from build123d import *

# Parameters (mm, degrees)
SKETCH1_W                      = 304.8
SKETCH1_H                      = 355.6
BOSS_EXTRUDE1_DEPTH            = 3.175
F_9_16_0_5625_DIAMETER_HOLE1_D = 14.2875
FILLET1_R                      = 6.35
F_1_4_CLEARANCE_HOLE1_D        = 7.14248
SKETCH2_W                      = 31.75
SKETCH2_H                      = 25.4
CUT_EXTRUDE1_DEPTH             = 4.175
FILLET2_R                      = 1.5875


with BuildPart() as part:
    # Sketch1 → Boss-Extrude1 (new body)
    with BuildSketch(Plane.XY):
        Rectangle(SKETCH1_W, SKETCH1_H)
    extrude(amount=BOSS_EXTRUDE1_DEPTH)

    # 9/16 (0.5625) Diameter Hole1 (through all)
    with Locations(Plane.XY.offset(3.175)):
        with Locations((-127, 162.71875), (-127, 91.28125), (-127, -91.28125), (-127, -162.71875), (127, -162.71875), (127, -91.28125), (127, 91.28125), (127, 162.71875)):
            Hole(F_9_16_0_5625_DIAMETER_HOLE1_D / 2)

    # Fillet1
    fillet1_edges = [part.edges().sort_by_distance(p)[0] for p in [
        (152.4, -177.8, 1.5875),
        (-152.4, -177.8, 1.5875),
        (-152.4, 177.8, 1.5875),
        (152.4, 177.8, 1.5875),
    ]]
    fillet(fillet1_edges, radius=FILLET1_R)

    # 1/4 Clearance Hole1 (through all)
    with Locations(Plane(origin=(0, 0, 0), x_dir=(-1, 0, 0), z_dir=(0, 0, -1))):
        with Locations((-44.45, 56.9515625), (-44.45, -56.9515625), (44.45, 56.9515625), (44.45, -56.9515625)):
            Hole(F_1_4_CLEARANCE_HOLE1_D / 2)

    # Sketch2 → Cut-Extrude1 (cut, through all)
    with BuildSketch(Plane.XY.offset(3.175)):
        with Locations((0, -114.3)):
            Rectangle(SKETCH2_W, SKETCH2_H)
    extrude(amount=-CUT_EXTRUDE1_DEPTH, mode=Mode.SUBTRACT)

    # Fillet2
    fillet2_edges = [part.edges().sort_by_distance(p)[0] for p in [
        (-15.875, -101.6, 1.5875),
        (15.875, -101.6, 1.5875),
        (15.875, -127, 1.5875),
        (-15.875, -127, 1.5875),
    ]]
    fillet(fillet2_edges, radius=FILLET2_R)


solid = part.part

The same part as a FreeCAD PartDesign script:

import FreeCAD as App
import Part
import Sketcher

V = App.Vector
Q = App.Units.Quantity


def edges_at(feature, points):
    """Names of the edges that pass closest to the given points."""
    edges = feature.Shape.Edges
    near = lambda p: min(range(len(edges)), key=lambda i: edges[i].distToShape(Part.Vertex(*p))[0])
    return sorted({f"Edge{near(p) + 1}" for p in points})

doc = App.newDocument("Part")
body = doc.addObject("PartDesign::Body", "Body")

sketch1 = doc.addObject("Sketcher::SketchObject", "Sketch")
body.addObject(sketch1)
sketch1.AttachmentSupport = (doc.XY_Plane, [""])
sketch1.MapMode = "FlatFace"
sketch1.addGeometry([
    Part.LineSegment(V(-152, 178, 0), V(-152, -178, 0)),
    Part.LineSegment(V(-152, -178, 0), V(152, -178, 0)),
    Part.LineSegment(V(152, -178, 0), V(152, 178, 0)),
    Part.LineSegment(V(152, 178, 0), V(-152, 178, 0)),
], False)
sketch1.addConstraint([
    Sketcher.Constraint("Coincident", 0, 2, 1, 1),
    Sketcher.Constraint("Coincident", 1, 2, 2, 1),
    Sketcher.Constraint("Coincident", 2, 2, 3, 1),
    Sketcher.Constraint("Coincident", 3, 2, 0, 1),
    Sketcher.Constraint("Vertical", 0),
    Sketcher.Constraint("Horizontal", 1),
    Sketcher.Constraint("Vertical", 2),
    Sketcher.Constraint("Horizontal", 3),
    Sketcher.Constraint("Symmetric", 0, 2, 2, 2, -1, 1),
    Sketcher.Constraint("DistanceX", 1, 1, 1, 2, Q("12 in")),
    Sketcher.Constraint("DistanceY", 0, 2, 0, 1, Q("14 in")),
])
pad1 = doc.addObject("PartDesign::Pad", "Pad")
body.addObject(pad1)
pad1.Profile = sketch1
pad1.Length = Q("0.125 in")

sketch2 = doc.addObject("Sketcher::SketchObject", "Sketch001")
body.addObject(sketch2)
sketch2.AttachmentSupport = (doc.XY_Plane, [""])
sketch2.MapMode = "FlatFace"
sketch2.AttachmentOffset = App.Placement(V(0, 0, 0.125 * 25.4), App.Rotation())
sketch2.addGeometry([
    Part.Circle(V(-127, 163, 0), V(0, 0, 1), 7),
    Part.Circle(V(-127, 91, 0), V(0, 0, 1), 7),
    Part.Circle(V(-127, -91, 0), V(0, 0, 1), 7),
    Part.Circle(V(-127, -163, 0), V(0, 0, 1), 7),
    Part.Circle(V(127, -163, 0), V(0, 0, 1), 7),
    Part.Circle(V(127, -91, 0), V(0, 0, 1), 7),
    Part.Circle(V(127, 91, 0), V(0, 0, 1), 7),
    Part.Circle(V(127, 163, 0), V(0, 0, 1), 7),
], False)
sketch2.addConstraint([
    Sketcher.Constraint("Equal", 0, 1),
    Sketcher.Constraint("Equal", 1, 2),
    Sketcher.Constraint("Equal", 2, 3),
    Sketcher.Constraint("Equal", 3, 4),
    Sketcher.Constraint("Equal", 4, 5),
    Sketcher.Constraint("Equal", 5, 6),
    Sketcher.Constraint("Equal", 6, 7),
    Sketcher.Constraint("Symmetric", 0, 3, 4, 3, -1, 1),
    Sketcher.Constraint("Symmetric", 1, 3, 5, 3, -1, 1),
    Sketcher.Constraint("Symmetric", 2, 3, 6, 3, -1, 1),
    Sketcher.Constraint("Symmetric", 3, 3, 7, 3, -1, 1),
    Sketcher.Constraint("Symmetric", 3, 3, 4, 3, -2),
    Sketcher.Constraint("Symmetric", 2, 3, 5, 3, -2),
    Sketcher.Constraint("Vertical", 0, 3, 1, 3),
    Sketcher.Constraint("Diameter", 0, Q("0.5625 in")),
    Sketcher.Constraint("DistanceX", 0, 3, -1, 1, Q("5 in")),
    Sketcher.Constraint("DistanceY", 2, 3, 0, 3, Q("10 in")),
    Sketcher.Constraint("DistanceY", -1, 1, 0, 3, Q("6.40625 in")),
])
doc.recompute()
hole = doc.addObject("PartDesign::Hole", "Hole")
body.addObject(hole)
hole.Profile = sketch2
hole.ThreadType = "None"
hole.Diameter = Q("0.5625 in")
hole.DepthType = "ThroughAll"
doc.recompute()

fillet = doc.addObject("PartDesign::Fillet", "Fillet")
body.addObject(fillet)
fillet.Base = (hole, edges_at(hole, [
    (152.4, -177.8, 1.587),
    (-152.4, -177.8, 1.587),
    (-152.4, 177.8, 1.587),
    (152.4, 177.8, 1.587),
]))
fillet.Radius = Q("0.25 in")

sketch3 = doc.addObject("Sketcher::SketchObject", "Sketch002")
body.addObject(sketch3)
sketch3.AttachmentSupport = (doc.XY_Plane, [""])
sketch3.MapMode = "FlatFace"
sketch3.addGeometry([
    Part.Circle(V(44.5, 57, 0), V(0, 0, 1), 3.6),
    Part.Circle(V(44.5, -57, 0), V(0, 0, 1), 3.6),
    Part.Circle(V(-44.5, 57, 0), V(0, 0, 1), 3.6),
    Part.Circle(V(-44.5, -57, 0), V(0, 0, 1), 3.6),
], False)
sketch3.addConstraint([
    Sketcher.Constraint("Equal", 0, 1),
    Sketcher.Constraint("Equal", 1, 2),
    Sketcher.Constraint("Equal", 2, 3),
    Sketcher.Constraint("Symmetric", 1, 3, 2, 3, -1, 1),
    Sketcher.Constraint("Symmetric", 0, 3, 3, 3, -1, 1),
    Sketcher.Constraint("Symmetric", 0, 3, 2, 3, -2),
    Sketcher.Constraint("Diameter", 0, Q("0.2812 in")),
    Sketcher.Constraint("DistanceX", 2, 3, 0, 3, Q("3.5 in")),
    Sketcher.Constraint("DistanceY", 1, 3, 0, 3, Q("4.484375 in")),
])
doc.recompute()
hole2 = doc.addObject("PartDesign::Hole", "Hole001")
body.addObject(hole2)
hole2.Profile = sketch3
hole2.ThreadType = "None"
hole2.Diameter = Q("0.2812 in")
hole2.DepthType = "ThroughAll"
hole2.Reversed = True

sketch4 = doc.addObject("Sketcher::SketchObject", "Sketch003")
body.addObject(sketch4)
sketch4.AttachmentSupport = (doc.XY_Plane, [""])
sketch4.MapMode = "FlatFace"
sketch4.AttachmentOffset = App.Placement(V(0, 0, 0.125 * 25.4), App.Rotation())
sketch4.addGeometry([
    Part.LineSegment(V(-16, -102, 0), V(-16, -127, 0)),
    Part.LineSegment(V(-16, -127, 0), V(16, -127, 0)),
    Part.LineSegment(V(16, -127, 0), V(16, -102, 0)),
    Part.LineSegment(V(16, -102, 0), V(-16, -102, 0)),
], False)
sketch4.addConstraint([
    Sketcher.Constraint("Coincident", 0, 2, 1, 1),
    Sketcher.Constraint("Coincident", 1, 2, 2, 1),
    Sketcher.Constraint("Coincident", 2, 2, 3, 1),
    Sketcher.Constraint("Coincident", 3, 2, 0, 1),
    Sketcher.Constraint("Vertical", 0),
    Sketcher.Constraint("Horizontal", 1),
    Sketcher.Constraint("Vertical", 2),
    Sketcher.Constraint("Horizontal", 3),
    Sketcher.Constraint("DistanceY", 0, 2, 0, 1, Q("1 in")),
    Sketcher.Constraint("DistanceY", 0, 2, -1, 1, Q("5 in")),
    Sketcher.Constraint("DistanceX", 1, 1, 1, 2, Q("1.25 in")),
    Sketcher.Constraint("DistanceX", 0, 2, -1, 1, Q("0.625 in")),
])
pocket1 = doc.addObject("PartDesign::Pocket", "Pocket")
body.addObject(pocket1)
pocket1.Profile = sketch4
pocket1.Type = "ThroughAll"
doc.recompute()

fillet2 = doc.addObject("PartDesign::Fillet", "Fillet001")
body.addObject(fillet2)
fillet2.Base = (pocket1, edges_at(pocket1, [
    (-15.875, -101.6, 1.587),
    (15.875, -101.6, 1.587),
    (15.875, -127, 1.587),
    (-15.875, -127, 1.587),
]))
fillet2.Radius = Q("0.0625 in")

doc.recompute()
